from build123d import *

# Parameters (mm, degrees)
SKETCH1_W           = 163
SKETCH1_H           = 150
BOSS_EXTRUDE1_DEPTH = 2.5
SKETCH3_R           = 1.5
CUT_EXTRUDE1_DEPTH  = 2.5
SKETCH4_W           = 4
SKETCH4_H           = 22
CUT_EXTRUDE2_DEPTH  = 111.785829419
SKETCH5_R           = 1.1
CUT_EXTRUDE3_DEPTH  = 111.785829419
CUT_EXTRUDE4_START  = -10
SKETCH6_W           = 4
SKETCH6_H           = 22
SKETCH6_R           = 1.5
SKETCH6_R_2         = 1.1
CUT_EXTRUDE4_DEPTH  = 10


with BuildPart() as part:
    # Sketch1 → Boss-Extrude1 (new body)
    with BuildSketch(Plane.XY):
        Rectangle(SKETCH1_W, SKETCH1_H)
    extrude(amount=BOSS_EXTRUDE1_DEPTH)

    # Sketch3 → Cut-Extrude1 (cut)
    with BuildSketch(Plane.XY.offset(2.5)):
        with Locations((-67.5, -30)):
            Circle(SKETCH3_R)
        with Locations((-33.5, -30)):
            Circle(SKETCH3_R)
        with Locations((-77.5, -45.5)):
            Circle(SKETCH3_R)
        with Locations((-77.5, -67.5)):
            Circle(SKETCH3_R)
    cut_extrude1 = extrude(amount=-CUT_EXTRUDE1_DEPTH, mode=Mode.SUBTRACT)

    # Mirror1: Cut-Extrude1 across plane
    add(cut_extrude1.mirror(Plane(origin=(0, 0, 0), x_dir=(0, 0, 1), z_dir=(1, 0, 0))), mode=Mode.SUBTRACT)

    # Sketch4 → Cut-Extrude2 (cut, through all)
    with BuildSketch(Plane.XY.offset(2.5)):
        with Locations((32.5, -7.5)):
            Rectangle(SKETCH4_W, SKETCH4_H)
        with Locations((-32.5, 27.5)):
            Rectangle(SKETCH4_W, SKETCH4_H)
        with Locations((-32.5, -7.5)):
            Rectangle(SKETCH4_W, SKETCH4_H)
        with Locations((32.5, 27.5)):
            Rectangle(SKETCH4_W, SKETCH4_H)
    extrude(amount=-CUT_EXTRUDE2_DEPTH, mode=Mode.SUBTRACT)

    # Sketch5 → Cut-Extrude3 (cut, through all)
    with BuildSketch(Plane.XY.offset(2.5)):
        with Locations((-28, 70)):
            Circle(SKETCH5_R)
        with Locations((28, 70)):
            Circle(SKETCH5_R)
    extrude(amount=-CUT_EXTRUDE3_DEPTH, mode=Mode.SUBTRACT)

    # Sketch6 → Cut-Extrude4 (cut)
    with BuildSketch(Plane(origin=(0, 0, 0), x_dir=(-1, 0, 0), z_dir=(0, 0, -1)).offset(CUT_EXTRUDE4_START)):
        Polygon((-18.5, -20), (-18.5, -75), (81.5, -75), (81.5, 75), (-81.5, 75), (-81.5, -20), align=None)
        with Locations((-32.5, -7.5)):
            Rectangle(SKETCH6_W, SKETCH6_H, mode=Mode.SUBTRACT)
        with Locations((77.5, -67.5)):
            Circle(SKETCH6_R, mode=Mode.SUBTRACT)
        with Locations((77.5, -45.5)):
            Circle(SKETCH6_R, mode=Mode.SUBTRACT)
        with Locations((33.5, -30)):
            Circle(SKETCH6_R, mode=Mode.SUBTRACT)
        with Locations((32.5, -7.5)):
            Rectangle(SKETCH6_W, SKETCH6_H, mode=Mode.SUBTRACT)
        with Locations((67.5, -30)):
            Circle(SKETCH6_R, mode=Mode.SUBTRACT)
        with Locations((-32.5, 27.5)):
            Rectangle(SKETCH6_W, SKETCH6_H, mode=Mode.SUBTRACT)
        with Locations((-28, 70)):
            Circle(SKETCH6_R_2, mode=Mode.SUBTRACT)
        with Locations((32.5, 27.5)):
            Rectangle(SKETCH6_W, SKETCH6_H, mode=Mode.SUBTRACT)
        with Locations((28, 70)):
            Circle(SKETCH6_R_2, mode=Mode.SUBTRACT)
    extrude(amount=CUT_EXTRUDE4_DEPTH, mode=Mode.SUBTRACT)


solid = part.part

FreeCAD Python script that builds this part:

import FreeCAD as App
import Part
import Sketcher
from FreeCAD import Vector

doc = App.newDocument("Part")
body = doc.addObject("PartDesign::Body", "Body")

# Sketch on XY plane
sketch1 = doc.addObject("Sketcher::SketchObject", "Sketch")
body.addObject(sketch1)
sketch1.AttachmentSupport = (doc.XY_Plane, [""])
sketch1.MapMode = "FlatFace"
sketch1.addGeometry(Part.LineSegment(Vector(-82, 75, 0), Vector(-82, -75, 0)), False)
sketch1.addGeometry(Part.LineSegment(Vector(-82, -75, 0), Vector(82, -75, 0)), False)
sketch1.addGeometry(Part.LineSegment(Vector(82, -75, 0), Vector(82, 75, 0)), False)
sketch1.addGeometry(Part.LineSegment(Vector(82, 75, 0), Vector(-82, 75, 0)), False)
sketch1.addConstraint(Sketcher.Constraint("Coincident", 0, 2, 1, 1))
sketch1.addConstraint(Sketcher.Constraint("Coincident", 1, 2, 2, 1))
sketch1.addConstraint(Sketcher.Constraint("Coincident", 2, 2, 3, 1))
sketch1.addConstraint(Sketcher.Constraint("Coincident", 3, 2, 0, 1))
sketch1.addConstraint(Sketcher.Constraint("Vertical", 0))
sketch1.addConstraint(Sketcher.Constraint("Horizontal", 1))
sketch1.addConstraint(Sketcher.Constraint("Vertical", 2))
sketch1.addConstraint(Sketcher.Constraint("Horizontal", 3))
sketch1.addConstraint(Sketcher.Constraint("Symmetric", 0, 2, 2, 2, -1, 1))
sketch1.addConstraint(Sketcher.Constraint("DistanceX", 1, 1, 1, 2, 163.0))
sketch1.addConstraint(Sketcher.Constraint("DistanceY", 0, 2, 0, 1, 150.0))
pad1 = doc.addObject("PartDesign::Pad", "Pad")
body.addObject(pad1)
pad1.Profile = sketch1
pad1.Length = 2.5

# Sketch on XY plane
sketch2 = doc.addObject("Sketcher::SketchObject", "Sketch001")
body.addObject(sketch2)
sketch2.AttachmentSupport = (doc.XY_Plane, [""])
sketch2.MapMode = "FlatFace"
sketch2.AttachmentOffset = App.Placement(Vector(0, 0, 2.5), App.Rotation())
sketch2.addGeometry(Part.Circle(Vector(-67.5, -30, 0), Vector(0, 0, 1), 1.5), False)
sketch2.addGeometry(Part.Circle(Vector(-33.5, -30, 0), Vector(0, 0, 1), 1.5), False)
sketch2.addGeometry(Part.Circle(Vector(-77.5, -45.5, 0), Vector(0, 0, 1), 1.5), False)
sketch2.addGeometry(Part.Circle(Vector(-77.5, -67.5, 0), Vector(0, 0, 1), 1.5), False)
sketch2.addConstraint(Sketcher.Constraint("Equal", 0, 1))
sketch2.addConstraint(Sketcher.Constraint("Equal", 1, 2))
sketch2.addConstraint(Sketcher.Constraint("Equal", 2, 3))
sketch2.addConstraint(Sketcher.Constraint("Horizontal", 0, 3, 1, 3))
sketch2.addConstraint(Sketcher.Constraint("Vertical", 2, 3, 3, 3))
sketch2.addConstraint(Sketcher.Constraint("Diameter", 0, 3.0))
sketch2.addConstraint(Sketcher.Constraint("DistanceY", 0, 3, -1, 1, 30.0))
sketch2.addConstraint(Sketcher.Constraint("DistanceX", 0, 3, 1, 3, 34.0))
sketch2.addConstraint(Sketcher.Constraint("DistanceX", 2, 3, 0, 3, 10.0))
sketch2.addConstraint(Sketcher.Constraint("DistanceY", 3, 3, 2, 3, 22.0))
sketch2.addConstraint(Sketcher.Constraint("DistanceX", 0, 3, -1, 1, 67.5))
sketch2.addConstraint(Sketcher.Constraint("DistanceY", 2, 3, -1, 1, 45.5))
pocket1 = doc.addObject("PartDesign::Pocket", "Pocket")
body.addObject(pocket1)
pocket1.Profile = sketch2
pocket1.Length = 2.5
doc.recompute()

mirrored = doc.addObject("PartDesign::Mirrored", "Mirrored")
body.addObject(mirrored)
mirrored.Originals = [pocket1]
mirrored.MirrorPlane = (doc.YZ_Plane, [""])
body.Tip = mirrored

# Sketch on XY plane
sketch3 = doc.addObject("Sketcher::SketchObject", "Sketch002")
body.addObject(sketch3)
sketch3.AttachmentSupport = (doc.XY_Plane, [""])
sketch3.MapMode = "FlatFace"
sketch3.AttachmentOffset = App.Placement(Vector(0, 0, 2.5), App.Rotation())
sketch3.addGeometry(Part.LineSegment(Vector(30.5, 3.5, 0), Vector(30.5, -18.5, 0)), False)
sketch3.addGeometry(Part.LineSegment(Vector(30.5, -18.5, 0), Vector(34.5, -18.5, 0)), False)
sketch3.addGeometry(Part.LineSegment(Vector(34.5, -18.5, 0), Vector(34.5, 3.5, 0)), False)
sketch3.addGeometry(Part.LineSegment(Vector(34.5, 3.5, 0), Vector(30.5, 3.5, 0)), False)
sketch3.addGeometry(Part.LineSegment(Vector(-34.5, 38.5, 0), Vector(-34.5, 16.5, 0)), False)
sketch3.addGeometry(Part.LineSegment(Vector(-34.5, 16.5, 0), Vector(-30.5, 16.5, 0)), False)
sketch3.addGeometry(Part.LineSegment(Vector(-30.5, 16.5, 0), Vector(-30.5, 38.5, 0)), False)
sketch3.addGeometry(Part.LineSegment(Vector(-30.5, 38.5, 0), Vector(-34.5, 38.5, 0)), False)
sketch3.addGeometry(Part.LineSegment(Vector(-34.5, 3.5, 0), Vector(-34.5, -18.5, 0)), False)
sketch3.addGeometry(Part.LineSegment(Vector(-34.5, -18.5, 0), Vector(-30.5, -18.5, 0)), False)
sketch3.addGeometry(Part.LineSegment(Vector(-30.5, -18.5, 0), Vector(-30.5, 3.5, 0)), False)
sketch3.addGeometry(Part.LineSegment(Vector(-30.5, 3.5, 0), Vector(-34.5, 3.5, 0)), False)
sketch3.addGeometry(Part.LineSegment(Vector(30.5, 38.5, 0), Vector(30.5, 16.5, 0)), False)
sketch3.addGeometry(Part.LineSegment(Vector(30.5, 16.5, 0), Vector(34.5, 16.5, 0)), False)
sketch3.addGeometry(Part.LineSegment(Vector(34.5, 16.5, 0), Vector(34.5, 38.5, 0)), False)
sketch3.addGeometry(Part.LineSegment(Vector(34.5, 38.5, 0), Vector(30.5, 38.5, 0)), False)
sketch3.addConstraint(Sketcher.Constraint("Coincident", 0, 2, 1, 1))
sketch3.addConstraint(Sketcher.Constraint("Coincident", 1, 2, 2, 1))
sketch3.addConstraint(Sketcher.Constraint("Coincident", 2, 2, 3, 1))
sketch3.addConstraint(Sketcher.Constraint("Coincident", 3, 2, 0, 1))
sketch3.addConstraint(Sketcher.Constraint("Coincident", 4, 2, 5, 1))
sketch3.addConstraint(Sketcher.Constraint("Coincident", 5, 2, 6, 1))
sketch3.addConstraint(Sketcher.Constraint("Coincident", 6, 2, 7, 1))
sketch3.addConstraint(Sketcher.Constraint("Coincident", 7, 2, 4, 1))
sketch3.addConstraint(Sketcher.Constraint("Coincident", 8, 2, 9, 1))
sketch3.addConstraint(Sketcher.Constraint("Coincident", 9, 2, 10, 1))
sketch3.addConstraint(Sketcher.Constraint("Coincident", 10, 2, 11, 1))
sketch3.addConstraint(Sketcher.Constraint("Coincident", 11, 2, 8, 1))
sketch3.addConstraint(Sketcher.Constraint("Coincident", 12, 2, 13, 1))
sketch3.addConstraint(Sketcher.Constraint("Coincident", 13, 2, 14, 1))
sketch3.addConstraint(Sketcher.Constraint("Coincident", 14, 2, 15, 1))
sketch3.addConstraint(Sketcher.Constraint("Coincident", 15, 2, 12, 1))
sketch3.addConstraint(Sketcher.Constraint("Vertical", 0))
sketch3.addConstraint(Sketcher.Constraint("Horizontal", 1))
sketch3.addConstraint(Sketcher.Constraint("Vertical", 2))
sketch3.addConstraint(Sketcher.Constraint("Horizontal", 3))
sketch3.addConstraint(Sketcher.Constraint("Vertical", 4))
sketch3.addConstraint(Sketcher.Constraint("Horizontal", 5))
sketch3.addConstraint(Sketcher.Constraint("Vertical", 6))
sketch3.addConstraint(Sketcher.Constraint("Horizontal", 7))
sketch3.addConstraint(Sketcher.Constraint("Vertical", 8))
sketch3.addConstraint(Sketcher.Constraint("Horizontal", 9))
sketch3.addConstraint(Sketcher.Constraint("Vertical", 10))
sketch3.addConstraint(Sketcher.Constraint("Horizontal", 11))
sketch3.addConstraint(Sketcher.Constraint("Vertical", 12))
sketch3.addConstraint(Sketcher.Constraint("Horizontal", 13))
sketch3.addConstraint(Sketcher.Constraint("Vertical", 14))
sketch3.addConstraint(Sketcher.Constraint("Horizontal", 15))
sketch3.addConstraint(Sketcher.Constraint("Symmetric", 1, 2, 8, 2, -2))
sketch3.addConstraint(Sketcher.Constraint("Symmetric", 3, 2, 10, 2, -2))
sketch3.addConstraint(Sketcher.Constraint("Symmetric", 5, 2, 12, 2, -2))
sketch3.addConstraint(Sketcher.Constraint("Symmetric", 7, 2, 14, 2, -2))
sketch3.addConstraint(Sketcher.Constraint("Vertical", 7, 2, 8, 2))
sketch3.addConstraint(Sketcher.Constraint("Vertical", 6, 2, 9, 2))
sketch3.addConstraint(Sketcher.Constraint("Equal", 2, 4))
sketch3.addConstraint(Sketcher.Constraint("DistanceX", 1, 1, 1, 2, 4.0))
sketch3.addConstraint(Sketcher.Constraint("DistanceY", 0, 2, 0, 1, 22.0))
sketch3.addConstraint(Sketcher.Constraint("DistanceX", 4, 2, 3, 2, 65.0))
sketch3.addConstraint(Sketcher.Constraint("DistanceY", 3, 2, 4, 2, 13.0))
sketch3.addConstraint(Sketcher.Constraint("DistanceY", 0, 2, -1, 1, 18.5))
pocket2 = doc.addObject("PartDesign::Pocket", "Pocket001")
body.addObject(pocket2)
pocket2.Profile = sketch3
pocket2.Type = "ThroughAll"

# Sketch on XY plane
sketch4 = doc.addObject("Sketcher::SketchObject", "Sketch003")
body.addObject(sketch4)
sketch4.AttachmentSupport = (doc.XY_Plane, [""])
sketch4.MapMode = "FlatFace"
sketch4.AttachmentOffset = App.Placement(Vector(0, 0, 2.5), App.Rotation())
sketch4.addGeometry(Part.Circle(Vector(-28, 70, 0), Vector(0, 0, 1), 1.1), False)
sketch4.addGeometry(Part.Circle(Vector(28, 70, 0), Vector(0, 0, 1), 1.1), False)
sketch4.addConstraint(Sketcher.Constraint("Equal", 0, 1))
sketch4.addConstraint(Sketcher.Constraint("Symmetric", 0, 3, 1, 3, -2))
sketch4.addConstraint(Sketcher.Constraint("Diameter", 0, 2.2))
sketch4.addConstraint(Sketcher.Constraint("DistanceX", 0, 3, -1, 1, 28.0))
sketch4.addConstraint(Sketcher.Constraint("DistanceY", -1, 1, 0, 3, 70.0))
pocket3 = doc.addObject("PartDesign::Pocket", "Pocket002")
body.addObject(pocket3)
pocket3.Profile = sketch4
pocket3.Type = "ThroughAll"

# Sketch on XY plane
sketch5 = doc.addObject("Sketcher::SketchObject", "Sketch004")
body.addObject(sketch5)
sketch5.AttachmentSupport = (doc.XY_Plane, [""])
sketch5.MapMode = "FlatFace"
sketch5.AttachmentOffset = App.Placement(Vector(0, 0, 10), App.Rotation())
sketch5.addGeometry(Part.LineSegment(Vector(18.5, -20, 0), Vector(18.5, -75, 0)), False)
sketch5.addGeometry(Part.LineSegment(Vector(18.5, -75, 0), Vector(-81.5, -75, 0)), False)
sketch5.addGeometry(Part.LineSegment(Vector(-81.5, -75, 0), Vector(-81.5, 75, 0)), False)
sketch5.addGeometry(Part.LineSegment(Vector(-81.5, 75, 0), Vector(81.5, 75, 0)), False)
sketch5.addGeometry(Part.LineSegment(Vector(81.5, 75, 0), Vector(81.5, -20, 0)), False)
sketch5.addGeometry(Part.LineSegment(Vector(81.5, -20, 0), Vector(18.5, -20, 0)), False)
sketch5.addGeometry(Part.LineSegment(Vector(30.5, -18.5, 0), Vector(34.5, -18.5, 0)), False)
sketch5.addGeometry(Part.LineSegment(Vector(34.5, -18.5, 0), Vector(34.5, 3.5, 0)), False)
sketch5.addGeometry(Part.LineSegment(Vector(34.5, 3.5, 0), Vector(30.5, 3.5, 0)), False)
sketch5.addGeometry(Part.LineSegment(Vector(30.5, 3.5, 0), Vector(30.5, -18.5, 0)), False)
sketch5.addGeometry(Part.Circle(Vector(-77.5, -67.5, 0), Vector(0, 0, 1), 1.5), False)
sketch5.addGeometry(Part.Circle(Vector(-77.5, -45.5, 0), Vector(0, 0, 1), 1.5), False)
sketch5.addGeometry(Part.Circle(Vector(-33.5, -30, 0), Vector(0, 0, 1), 1.5), False)
sketch5.addGeometry(Part.LineSegment(Vector(-34.5, -18.5, 0), Vector(-30.5, -18.5, 0)), False)
sketch5.addGeometry(Part.LineSegment(Vector(-30.5, -18.5, 0), Vector(-30.5, 3.5, 0)), False)
sketch5.addGeometry(Part.LineSegment(Vector(-30.5, 3.5, 0), Vector(-34.5, 3.5, 0)), False)
sketch5.addGeometry(Part.LineSegment(Vector(-34.5, 3.5, 0), Vector(-34.5, -18.5, 0)), False)
sketch5.addGeometry(Part.Circle(Vector(-67.5, -30, 0), Vector(0, 0, 1), 1.5), False)
sketch5.addGeometry(Part.LineSegment(Vector(30.5, 16.5, 0), Vector(34.5, 16.5, 0)), False)
sketch5.addGeometry(Part.LineSegment(Vector(34.5, 16.5, 0), Vector(34.5, 38.5, 0)), False)
sketch5.addGeometry(Part.LineSegment(Vector(34.5, 38.5, 0), Vector(30.5, 38.5, 0)), False)
sketch5.addGeometry(Part.LineSegment(Vector(30.5, 38.5, 0), Vector(30.5, 16.5, 0)), False)
sketch5.addGeometry(Part.Circle(Vector(28, 70, 0), Vector(0, 0, 1), 1.1), False)
sketch5.addGeometry(Part.LineSegment(Vector(-34.5, 16.5, 0), Vector(-30.5, 16.5, 0)), False)
sketch5.addGeometry(Part.LineSegment(Vector(-30.5, 16.5, 0), Vector(-30.5, 38.5, 0)), False)
sketch5.addGeometry(Part.LineSegment(Vector(-30.5, 38.5, 0), Vector(-34.5, 38.5, 0)), False)
sketch5.addGeometry(Part.LineSegment(Vector(-34.5, 38.5, 0), Vector(-34.5, 16.5, 0)), False)
sketch5.addGeometry(Part.Circle(Vector(-28, 70, 0), Vector(0, 0, 1), 1.1), False)
sketch5.addConstraint(Sketcher.Constraint("Coincident", 0, 2, 1, 1))
sketch5.addConstraint(Sketcher.Constraint("Coincident", 1, 2, 2, 1))
sketch5.addConstraint(Sketcher.Constraint("Coincident", 2, 2, 3, 1))
sketch5.addConstraint(Sketcher.Constraint("Coincident", 3, 2, 4, 1))
sketch5.addConstraint(Sketcher.Constraint("Coincident", 4, 2, 5, 1))
sketch5.addConstraint(Sketcher.Constraint("Coincident", 5, 2, 0, 1))
sketch5.addConstraint(Sketcher.Constraint("Coincident", 6, 2, 7, 1))
sketch5.addConstraint(Sketcher.Constraint("Coincident", 7, 2, 8, 1))
sketch5.addConstraint(Sketcher.Constraint("Coincident", 8, 2, 9, 1))
sketch5.addConstraint(Sketcher.Constraint("Coincident", 9, 2, 6, 1))
sketch5.addConstraint(Sketcher.Constraint("Coincident", 13, 2, 14, 1))
sketch5.addConstraint(Sketcher.Constraint("Coincident", 14, 2, 15, 1))
sketch5.addConstraint(Sketcher.Constraint("Coincident", 15, 2, 16, 1))
sketch5.addConstraint(Sketcher.Constraint("Coincident", 16, 2, 13, 1))
sketch5.addConstraint(Sketcher.Constraint("Coincident", 18, 2, 19, 1))
sketch5.addConstraint(Sketcher.Constraint("Coincident", 19, 2, 20, 1))
sketch5.addConstraint(Sketcher.Constraint("Coincident", 20, 2, 21, 1))
sketch5.addConstraint(Sketcher.Constraint("Coincident", 21, 2, 18, 1))
sketch5.addConstraint(Sketcher.Constraint("Coincident", 23, 2, 24, 1))
sketch5.addConstraint(Sketcher.Constraint("Coincident", 24, 2, 25, 1))
sketch5.addConstraint(Sketcher.Constraint("Coincident", 25, 2, 26, 1))
sketch5.addConstraint(Sketcher.Constraint("Coincident", 26, 2, 23, 1))
sketch5.addConstraint(Sketcher.Constraint("Vertical", 0))
sketch5.addConstraint(Sketcher.Constraint("Horizontal", 1))
sketch5.addConstraint(Sketcher.Constraint("Vertical", 2))
sketch5.addConstraint(Sketcher.Constraint("Horizontal", 3))
sketch5.addConstraint(Sketcher.Constraint("Vertical", 4))
sketch5.addConstraint(Sketcher.Constraint("Horizontal", 5))
sketch5.addConstraint(Sketcher.Constraint("Horizontal", 6))
sketch5.addConstraint(Sketcher.Constraint("Vertical", 7))
sketch5.addConstraint(Sketcher.Constraint("Horizontal", 8))
sketch5.addConstraint(Sketcher.Constraint("Vertical", 9))
sketch5.addConstraint(Sketcher.Constraint("Horizontal", 13))
sketch5.addConstraint(Sketcher.Constraint("Vertical", 14))
sketch5.addConstraint(Sketcher.Constraint("Horizontal", 15))
sketch5.addConstraint(Sketcher.Constraint("Vertical", 16))
sketch5.addConstraint(Sketcher.Constraint("Horizontal", 18))
sketch5.addConstraint(Sketcher.Constraint("Vertical", 19))
sketch5.addConstraint(Sketcher.Constraint("Horizontal", 20))
sketch5.addConstraint(Sketcher.Constraint("Vertical", 21))
sketch5.addConstraint(Sketcher.Constraint("Horizontal", 23))
sketch5.addConstraint(Sketcher.Constraint("Vertical", 24))
sketch5.addConstraint(Sketcher.Constraint("Horizontal", 25))
sketch5.addConstraint(Sketcher.Constraint("Vertical", 26))
sketch5.addConstraint(Sketcher.Constraint("Equal", 10, 11))
sketch5.addConstraint(Sketcher.Constraint("Equal", 11, 12))
sketch5.addConstraint(Sketcher.Constraint("Equal", 12, 17))
sketch5.addConstraint(Sketcher.Constraint("Equal", 22, 27))
sketch5.addConstraint(Sketcher.Constraint("Symmetric", 1, 2, 3, 2, -1, 1))
sketch5.addConstraint(Sketcher.Constraint("Symmetric", 22, 3, 27, 3, -2))
sketch5.addConstraint(Sketcher.Constraint("Symmetric", 9, 2, 13, 2, -2))
sketch5.addConstraint(Sketcher.Constraint("Symmetric", 7, 2, 15, 2, -2))
sketch5.addConstraint(Sketcher.Constraint("Symmetric", 21, 2, 23, 2, -2))
sketch5.addConstraint(Sketcher.Constraint("Symmetric", 19, 2, 25, 2, -2))
sketch5.addConstraint(Sketcher.Constraint("Horizontal", 12, 3, 17, 3))
sketch5.addConstraint(Sketcher.Constraint("Vertical", 10, 3, 11, 3))
sketch5.addConstraint(Sketcher.Constraint("Vertical", 7, 2, 18, 2))
sketch5.addConstraint(Sketcher.Constraint("Vertical", 9, 2, 20, 2))
sketch5.addConstraint(Sketcher.Constraint("Equal", 16, 19))
sketch5.addConstraint(Sketcher.Constraint("Diameter", 10, 3.0))
sketch5.addConstraint(Sketcher.Constraint("Diameter", 22, 2.2))
sketch5.addConstraint(Sketcher.Constraint("DistanceX", 1, 2, 1, 1, 100.0))
sketch5.addConstraint(Sketcher.Constraint("DistanceX", 3, 1, 3, 2, 163.0))
sketch5.addConstraint(Sketcher.Constraint("DistanceX", 6, 1, 6, 2, 4.0))
sketch5.addConstraint(Sketcher.Constraint("DistanceY", 0, 2, 0, 1, 55.0))
sketch5.addConstraint(Sketcher.Constraint("DistanceY", 2, 1, 2, 2, 150.0))
sketch5.addConstraint(Sketcher.Constraint("DistanceY", 7, 1, 7, 2, 22.0))
sketch5.addConstraint(Sketcher.Constraint("DistanceY", 12, 3, -1, 1, 30.0))
sketch5.addConstraint(Sketcher.Constraint("DistanceX", -1, 1, 22, 3, 28.0))
sketch5.addConstraint(Sketcher.Constraint("DistanceY", -1, 1, 22, 3, 70.0))
sketch5.addConstraint(Sketcher.Constraint("DistanceY", 10, 3, 11, 3, 22.0))
sketch5.addConstraint(Sketcher.Constraint("DistanceX", 11, 3, 12, 3, 44.0))
sketch5.addConstraint(Sketcher.Constraint("DistanceX", 11, 3, 17, 3, 10.0))
sketch5.addConstraint(Sketcher.Constraint("DistanceX", 12, 3, 0, 2, 52.0))
sketch5.addConstraint(Sketcher.Constraint("DistanceX", 5, 2, 6, 2, 16.0))
sketch5.addConstraint(Sketcher.Constraint("DistanceY", 11, 3, 13, 2, 27.0))
sketch5.addConstraint(Sketcher.Constraint("DistanceY", 7, 2, 18, 2, 13.0))
sketch5.addConstraint(Sketcher.Constraint("DistanceY", 10, 3, -1, 1, 67.5))
pocket4 = doc.addObject("PartDesign::Pocket", "Pocket003")
body.addObject(pocket4)
pocket4.Profile = sketch5
pocket4.Length = 10

doc.recompute()
